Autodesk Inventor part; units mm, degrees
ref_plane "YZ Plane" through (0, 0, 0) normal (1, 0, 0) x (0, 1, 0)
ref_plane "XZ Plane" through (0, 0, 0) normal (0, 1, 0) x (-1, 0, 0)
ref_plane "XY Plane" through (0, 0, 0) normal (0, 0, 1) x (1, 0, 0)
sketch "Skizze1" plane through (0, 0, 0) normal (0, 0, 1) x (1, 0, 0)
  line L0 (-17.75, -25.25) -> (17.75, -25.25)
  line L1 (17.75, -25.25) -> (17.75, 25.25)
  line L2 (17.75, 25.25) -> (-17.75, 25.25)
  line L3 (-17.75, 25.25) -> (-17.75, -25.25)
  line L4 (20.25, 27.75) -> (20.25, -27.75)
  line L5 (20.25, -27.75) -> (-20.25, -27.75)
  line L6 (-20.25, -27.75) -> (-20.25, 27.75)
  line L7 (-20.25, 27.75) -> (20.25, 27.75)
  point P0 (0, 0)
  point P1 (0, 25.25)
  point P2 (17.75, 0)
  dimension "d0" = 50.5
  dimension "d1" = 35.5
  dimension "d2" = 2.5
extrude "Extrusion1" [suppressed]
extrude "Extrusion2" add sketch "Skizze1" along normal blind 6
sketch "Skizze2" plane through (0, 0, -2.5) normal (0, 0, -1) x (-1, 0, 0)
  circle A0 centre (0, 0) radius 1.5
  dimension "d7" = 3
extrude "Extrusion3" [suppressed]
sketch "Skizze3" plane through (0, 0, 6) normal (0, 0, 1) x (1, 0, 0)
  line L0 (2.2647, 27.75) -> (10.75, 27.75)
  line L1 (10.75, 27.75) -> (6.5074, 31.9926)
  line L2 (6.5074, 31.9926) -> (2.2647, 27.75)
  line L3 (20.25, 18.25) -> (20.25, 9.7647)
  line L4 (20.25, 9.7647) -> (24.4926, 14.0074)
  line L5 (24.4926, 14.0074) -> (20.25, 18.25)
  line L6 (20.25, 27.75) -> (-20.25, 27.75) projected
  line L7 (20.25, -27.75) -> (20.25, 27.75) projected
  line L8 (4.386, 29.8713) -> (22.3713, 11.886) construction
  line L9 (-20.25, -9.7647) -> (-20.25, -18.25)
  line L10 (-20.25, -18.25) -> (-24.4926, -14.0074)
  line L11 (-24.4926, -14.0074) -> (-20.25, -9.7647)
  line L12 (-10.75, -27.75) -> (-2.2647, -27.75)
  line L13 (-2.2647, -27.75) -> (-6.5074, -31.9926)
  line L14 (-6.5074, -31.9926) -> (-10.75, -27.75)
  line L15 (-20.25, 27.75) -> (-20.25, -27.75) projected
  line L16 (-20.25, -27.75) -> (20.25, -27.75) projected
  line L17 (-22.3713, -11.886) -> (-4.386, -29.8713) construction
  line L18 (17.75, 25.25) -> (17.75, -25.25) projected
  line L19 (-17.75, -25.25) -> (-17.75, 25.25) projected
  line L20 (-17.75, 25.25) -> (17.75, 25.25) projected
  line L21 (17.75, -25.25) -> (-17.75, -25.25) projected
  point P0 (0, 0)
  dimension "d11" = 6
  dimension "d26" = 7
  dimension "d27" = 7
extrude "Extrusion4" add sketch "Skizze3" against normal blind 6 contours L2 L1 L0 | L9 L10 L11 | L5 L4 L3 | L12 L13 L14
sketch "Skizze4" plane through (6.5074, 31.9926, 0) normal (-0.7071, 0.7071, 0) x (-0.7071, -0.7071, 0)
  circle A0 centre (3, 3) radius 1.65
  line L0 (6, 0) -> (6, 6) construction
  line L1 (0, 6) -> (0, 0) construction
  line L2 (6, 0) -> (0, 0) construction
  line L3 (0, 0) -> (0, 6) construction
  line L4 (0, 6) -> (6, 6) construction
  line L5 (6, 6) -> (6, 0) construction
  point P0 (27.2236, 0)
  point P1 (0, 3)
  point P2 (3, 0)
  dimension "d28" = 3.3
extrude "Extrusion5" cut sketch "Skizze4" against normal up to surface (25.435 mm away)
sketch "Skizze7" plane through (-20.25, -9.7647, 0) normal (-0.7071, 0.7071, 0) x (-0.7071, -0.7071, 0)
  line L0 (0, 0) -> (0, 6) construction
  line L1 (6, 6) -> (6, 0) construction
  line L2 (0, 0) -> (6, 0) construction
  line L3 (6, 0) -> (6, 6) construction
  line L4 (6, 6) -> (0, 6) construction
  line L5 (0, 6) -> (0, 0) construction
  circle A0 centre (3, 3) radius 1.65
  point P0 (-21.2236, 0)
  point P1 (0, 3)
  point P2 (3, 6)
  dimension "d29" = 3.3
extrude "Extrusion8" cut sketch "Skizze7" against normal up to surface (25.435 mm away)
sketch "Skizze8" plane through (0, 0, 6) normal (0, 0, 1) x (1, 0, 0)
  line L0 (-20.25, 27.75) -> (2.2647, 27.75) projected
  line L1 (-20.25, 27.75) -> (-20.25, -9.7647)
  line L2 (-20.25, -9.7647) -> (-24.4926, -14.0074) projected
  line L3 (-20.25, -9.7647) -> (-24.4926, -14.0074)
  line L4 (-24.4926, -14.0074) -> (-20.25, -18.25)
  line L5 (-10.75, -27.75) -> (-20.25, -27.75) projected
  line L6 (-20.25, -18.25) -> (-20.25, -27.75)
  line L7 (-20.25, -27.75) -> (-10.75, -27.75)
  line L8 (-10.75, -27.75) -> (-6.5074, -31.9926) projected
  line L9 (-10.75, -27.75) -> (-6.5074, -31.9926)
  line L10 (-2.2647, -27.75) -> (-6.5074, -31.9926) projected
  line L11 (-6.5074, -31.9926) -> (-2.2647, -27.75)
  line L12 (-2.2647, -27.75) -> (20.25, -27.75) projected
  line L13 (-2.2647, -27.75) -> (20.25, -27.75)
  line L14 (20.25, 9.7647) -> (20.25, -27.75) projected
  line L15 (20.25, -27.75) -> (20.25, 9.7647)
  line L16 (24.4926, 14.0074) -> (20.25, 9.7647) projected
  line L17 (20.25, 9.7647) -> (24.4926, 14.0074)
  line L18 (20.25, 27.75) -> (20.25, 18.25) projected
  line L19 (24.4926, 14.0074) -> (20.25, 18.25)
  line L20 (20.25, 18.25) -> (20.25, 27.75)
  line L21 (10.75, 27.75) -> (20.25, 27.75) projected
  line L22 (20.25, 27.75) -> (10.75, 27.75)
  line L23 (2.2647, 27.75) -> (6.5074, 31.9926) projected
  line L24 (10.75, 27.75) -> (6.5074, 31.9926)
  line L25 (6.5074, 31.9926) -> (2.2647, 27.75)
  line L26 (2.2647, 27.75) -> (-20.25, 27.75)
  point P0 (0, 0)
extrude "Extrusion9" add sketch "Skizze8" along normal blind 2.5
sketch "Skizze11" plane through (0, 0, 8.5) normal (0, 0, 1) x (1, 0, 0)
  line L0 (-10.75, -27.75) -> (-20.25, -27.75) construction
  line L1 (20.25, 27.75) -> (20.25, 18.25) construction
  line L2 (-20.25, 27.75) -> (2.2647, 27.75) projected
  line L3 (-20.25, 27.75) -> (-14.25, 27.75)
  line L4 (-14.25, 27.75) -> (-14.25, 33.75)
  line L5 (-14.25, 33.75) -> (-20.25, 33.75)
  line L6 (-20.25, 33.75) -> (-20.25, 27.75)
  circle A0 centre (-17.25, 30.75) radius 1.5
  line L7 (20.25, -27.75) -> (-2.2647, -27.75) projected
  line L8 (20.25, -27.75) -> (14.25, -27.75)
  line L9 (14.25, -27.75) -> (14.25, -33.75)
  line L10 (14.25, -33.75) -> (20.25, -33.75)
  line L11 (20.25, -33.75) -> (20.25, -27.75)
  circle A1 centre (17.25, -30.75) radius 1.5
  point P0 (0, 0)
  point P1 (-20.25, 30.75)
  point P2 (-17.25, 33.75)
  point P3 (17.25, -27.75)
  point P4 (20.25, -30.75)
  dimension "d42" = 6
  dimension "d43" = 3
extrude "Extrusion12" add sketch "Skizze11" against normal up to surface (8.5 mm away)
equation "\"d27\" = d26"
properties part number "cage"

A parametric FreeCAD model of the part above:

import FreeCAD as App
import Part
import Sketcher

V = App.Vector
Q = App.Units.Quantity


def add_polygon(sketch, points):
    """Adds a closed chain of lines whose ends are joined by coincident constraints."""
    first, n = sketch.GeometryCount, len(points)
    for a, b in zip(points, points[1:] + points[:1]):
        sketch.addGeometry(Part.LineSegment(App.Vector(*a, 0), App.Vector(*b, 0)), False)
    for i in range(n):
        sketch.addConstraint(Sketcher.Constraint("Coincident", first + i, 2, first + (i + 1) % n, 1))

doc = App.newDocument("Part")
body = doc.addObject("PartDesign::Body", "Body")

sketch1 = body.newObject("Sketcher::SketchObject", "Sketch")
sketch1.AttachmentSupport = (doc.getObject("XY_Plane"), [""])
sketch1.MapMode = "FlatFace"
add_polygon(sketch1, [(20, -28), (20, 28), (-20, 28), (-20, -28)])
add_polygon(sketch1, [(18, -25), (-18, -25), (-18, 25), (18, 25)])
sketch1.addConstraint([
    Sketcher.Constraint("Vertical", 0),
    Sketcher.Constraint("Horizontal", 1),
    Sketcher.Constraint("Vertical", 2),
    Sketcher.Constraint("Horizontal", 3),
    Sketcher.Constraint("Horizontal", 4),
    Sketcher.Constraint("Vertical", 5),
    Sketcher.Constraint("Horizontal", 6),
    Sketcher.Constraint("Vertical", 7),
    Sketcher.Constraint("Symmetric", 0, 2, 2, 2, -1, 1),
    Sketcher.Constraint("Symmetric", 4, 2, 6, 2, -1, 1),
    Sketcher.Constraint("DistanceX", 4, 2, 4, 1, Q("35.5 mm")),
    Sketcher.Constraint("DistanceY", 5, 1, 5, 2, Q("50.5 mm")),
    Sketcher.Constraint("DistanceX", 2, 2, 4, 2, Q("2.5 mm")),
    Sketcher.Constraint("DistanceY", 2, 2, 4, 2, Q("2.5 mm")),
])
pad1 = body.newObject("PartDesign::Pad", "Pad")
pad1.Profile = sketch1
pad1.Length = 6

sketch2 = body.newObject("Sketcher::SketchObject", "Sketch001")
sketch2.AttachmentSupport = (doc.getObject("XY_Plane"), [""])
sketch2.MapMode = "FlatFace"
sketch2.AttachmentOffset = App.Placement(V(0, 0, 6), App.Rotation())
add_polygon(sketch2, [(7, 32), (2, 28), (11, 28)])
add_polygon(sketch2, [(-20, -18), (-20, -10), (-24, -14)])
add_polygon(sketch2, [(24, 14), (20, 18), (20, 10)])
add_polygon(sketch2, [(-2, -28), (-11, -28), (-7, -32)])
sketch2.addConstraint([
    Sketcher.Constraint("Horizontal", 1),
    Sketcher.Constraint("Vertical", 3),
    Sketcher.Constraint("Vertical", 7),
    Sketcher.Constraint("Horizontal", 9),
    Sketcher.Constraint("Symmetric", 5, 2, 6, 2, -1, 1),
    Sketcher.Constraint("Symmetric", 4, 2, 8, 2, -1, 1),
    Sketcher.Constraint("Symmetric", 1, 2, 9, 2, -1, 1),
    Sketcher.Constraint("Symmetric", 2, 2, 10, 2, -1, 1),
    Sketcher.Constraint("Perpendicular", 0, 2),
    Sketcher.Constraint("Perpendicular", 2, 4),
    Sketcher.Constraint("Perpendicular", 4, 5),
    Sketcher.Constraint("Perpendicular", 6, 8),
    Sketcher.Constraint("Perpendicular", 10, 11),
    Sketcher.Constraint("Equal", 9, 3),
    Sketcher.Constraint("Equal", 0, 2),
    Sketcher.Constraint("Distance", 0, Q("6 mm")),
    Sketcher.Constraint("DistanceX", 3, 2, 1, 2, Q("31 mm")),
    Sketcher.Constraint("DistanceY", 4, 2, 2, 2, Q("46 mm")),
    Sketcher.Constraint("DistanceX", 1, 2, 6, 2, Q("9.5 mm")),
    Sketcher.Constraint("DistanceY", 6, 2, 1, 2, Q("9.5 mm")),
])
pad2 = body.newObject("PartDesign::Pad", "Pad001")
pad2.Profile = sketch2
pad2.Length = 6
pad2.Reversed = True

sketch3 = body.newObject("Sketcher::SketchObject", "Sketch002")
sketch3.Placement = App.Placement(V(6.5074, 31.9926, 0), App.Rotation(V(-0.707106781, -0.707106781, 0), V(0, 0, 0.999999999), V(-0.707106781, 0.707106781, 0), "ZXY"))
sketch3.addGeometry(Part.Circle(V(3, 3, 0), V(0, 0, 1), 1.6), False)
sketch3.addConstraint([
    Sketcher.Constraint("Diameter", 0, Q("3.3 mm")),
    Sketcher.Constraint("DistanceX", -1, 1, 0, 3, Q("3 mm")),
    Sketcher.Constraint("DistanceY", -1, 1, 0, 3, Q("3 mm")),
])
pocket1 = body.newObject("PartDesign::Pocket", "Pocket")
pocket1.Profile = sketch3
pocket1.Length = 25.435

sketch4 = body.newObject("Sketcher::SketchObject", "Sketch003")
sketch4.Placement = App.Placement(V(-20.25, -9.7647, 0), App.Rotation(V(-0.707106781, -0.707106781, 0), V(0, 0, 0.999999999), V(-0.707106781, 0.707106781, 0), "ZXY"))
sketch4.addGeometry(Part.Circle(V(3, 3, 0), V(0, 0, 1), 1.6), False)
sketch4.addConstraint([
    Sketcher.Constraint("Diameter", 0, Q("3.3 mm")),
    Sketcher.Constraint("DistanceX", -1, 1, 0, 3, Q("3 mm")),
    Sketcher.Constraint("DistanceY", -1, 1, 0, 3, Q("3 mm")),
])
pocket2 = body.newObject("PartDesign::Pocket", "Pocket001")
pocket2.Profile = sketch4
pocket2.Length = 25.435

sketch5 = body.newObject("Sketcher::SketchObject", "Sketch004")
sketch5.AttachmentSupport = (doc.getObject("XY_Plane"), [""])
sketch5.MapMode = "FlatFace"
sketch5.AttachmentOffset = App.Placement(V(0, 0, 6), App.Rotation())
add_polygon(sketch5, [(2, 28), (-20, 28), (-20, -10), (-24, -14), (-20, -18), (-20, -28), (-11, -28), (-7, -32), (-2, -28), (20, -28), (20, 10), (24, 14), (20, 18), (20, 28), (11, 28), (7, 32)])
sketch5.addConstraint([
    Sketcher.Constraint("Horizontal", 0),
    Sketcher.Constraint("Vertical", 1),
    Sketcher.Constraint("Vertical", 4),
    Sketcher.Constraint("Horizontal", 5),
    Sketcher.Constraint("Horizontal", 8),
    Sketcher.Constraint("Vertical", 9),
    Sketcher.Constraint("Vertical", 12),
    Sketcher.Constraint("Horizontal", 13),
    Sketcher.Constraint("Symmetric", 0, 2, 8, 2, -1, 1),
    Sketcher.Constraint("Symmetric", 2, 2, 10, 2, -1, 1),
    Sketcher.Constraint("Symmetric", 3, 2, 11, 2, -1, 1),
    Sketcher.Constraint("Symmetric", 5, 2, 13, 2, -1, 1),
    Sketcher.Constraint("Symmetric", 6, 2, 14, 2, -1, 1),
    Sketcher.Constraint("Symmetric", 4, 2, 8, 2, -2),
    Sketcher.Constraint("Perpendicular", 2, 3),
    Sketcher.Constraint("Parallel", 3, 6),
    Sketcher.Constraint("Perpendicular", 6, 7),
    Sketcher.Constraint("Parallel", 7, 10),
    Sketcher.Constraint("Perpendicular", 14, 15),
    Sketcher.Constraint("Equal", 13, 4),
    Sketcher.Constraint("Equal", 2, 3),
    Sketcher.Constraint("Equal", 3, 6),
    Sketcher.Constraint("Distance", 2, Q("6 mm")),
    Sketcher.Constraint("DistanceX", 5, 1, 5, 2, Q("9.5 mm")),
    Sketcher.Constraint("DistanceY", 3, 2, 0, 2, Q("46 mm")),
    Sketcher.Constraint("DistanceX", 5, 2, 8, 2, Q("31 mm")),
])
pad3 = body.newObject("PartDesign::Pad", "Pad002")
pad3.Profile = sketch5
pad3.Length = 2.5

sketch6 = body.newObject("Sketcher::SketchObject", "Sketch005")
sketch6.AttachmentSupport = (doc.getObject("XY_Plane"), [""])
sketch6.MapMode = "FlatFace"
sketch6.AttachmentOffset = App.Placement(V(0, 0, 8.5), App.Rotation())
add_polygon(sketch6, [(-20.2, 33.8), (-20.2, 27.8), (-14.2, 27.8), (-14.2, 33.8)])
sketch6.addGeometry(Part.Circle(V(-17.2, 30.8, 0), V(0, 0, 1), 1.5), False)
add_polygon(sketch6, [(20.2, -33.8), (20.2, -27.8), (14.2, -27.8), (14.2, -33.8)])
sketch6.addGeometry(Part.Circle(V(17.2, -30.8, 0), V(0, 0, 1), 1.5), False)
sketch6.addConstraint([
    Sketcher.Constraint("Vertical", 0),
    Sketcher.Constraint("Horizontal", 1),
    Sketcher.Constraint("Vertical", 2),
    Sketcher.Constraint("Horizontal", 3),
    Sketcher.Constraint("Vertical", 5),
    Sketcher.Constraint("Horizontal", 6),
    Sketcher.Constraint("Vertical", 7),
    Sketcher.Constraint("Horizontal", 8),
    Sketcher.Constraint("Equal", 4, 9),
    Sketcher.Constraint("Symmetric", 4, 3, 9, 3, -1, 1),
    Sketcher.Constraint("Symmetric", 0, 2, 5, 2, -1, 1),
    Sketcher.Constraint("Symmetric", 2, 2, 7, 2, -1, 1),
    Sketcher.Constraint("Equal", 8, 0),
    Sketcher.Constraint("Diameter", 4, Q("3 mm")),
    Sketcher.Constraint("DistanceX", 1, 1, 1, 2, Q("6 mm")),
    Sketcher.Constraint("DistanceX", 0, 2, 4, 3, Q("3 mm")),
    Sketcher.Constraint("DistanceY", 0, 2, 4, 3, Q("3 mm")),
    Sketcher.Constraint("DistanceX", 4, 3, 9, 3, Q("34.5 mm")),
    Sketcher.Constraint("DistanceY", 9, 3, 4, 3, Q("61.5 mm")),
])
pad4 = body.newObject("PartDesign::Pad", "Pad003")
pad4.Profile = sketch6
pad4.Length = 8.5
pad4.Reversed = True

doc.recompute()
